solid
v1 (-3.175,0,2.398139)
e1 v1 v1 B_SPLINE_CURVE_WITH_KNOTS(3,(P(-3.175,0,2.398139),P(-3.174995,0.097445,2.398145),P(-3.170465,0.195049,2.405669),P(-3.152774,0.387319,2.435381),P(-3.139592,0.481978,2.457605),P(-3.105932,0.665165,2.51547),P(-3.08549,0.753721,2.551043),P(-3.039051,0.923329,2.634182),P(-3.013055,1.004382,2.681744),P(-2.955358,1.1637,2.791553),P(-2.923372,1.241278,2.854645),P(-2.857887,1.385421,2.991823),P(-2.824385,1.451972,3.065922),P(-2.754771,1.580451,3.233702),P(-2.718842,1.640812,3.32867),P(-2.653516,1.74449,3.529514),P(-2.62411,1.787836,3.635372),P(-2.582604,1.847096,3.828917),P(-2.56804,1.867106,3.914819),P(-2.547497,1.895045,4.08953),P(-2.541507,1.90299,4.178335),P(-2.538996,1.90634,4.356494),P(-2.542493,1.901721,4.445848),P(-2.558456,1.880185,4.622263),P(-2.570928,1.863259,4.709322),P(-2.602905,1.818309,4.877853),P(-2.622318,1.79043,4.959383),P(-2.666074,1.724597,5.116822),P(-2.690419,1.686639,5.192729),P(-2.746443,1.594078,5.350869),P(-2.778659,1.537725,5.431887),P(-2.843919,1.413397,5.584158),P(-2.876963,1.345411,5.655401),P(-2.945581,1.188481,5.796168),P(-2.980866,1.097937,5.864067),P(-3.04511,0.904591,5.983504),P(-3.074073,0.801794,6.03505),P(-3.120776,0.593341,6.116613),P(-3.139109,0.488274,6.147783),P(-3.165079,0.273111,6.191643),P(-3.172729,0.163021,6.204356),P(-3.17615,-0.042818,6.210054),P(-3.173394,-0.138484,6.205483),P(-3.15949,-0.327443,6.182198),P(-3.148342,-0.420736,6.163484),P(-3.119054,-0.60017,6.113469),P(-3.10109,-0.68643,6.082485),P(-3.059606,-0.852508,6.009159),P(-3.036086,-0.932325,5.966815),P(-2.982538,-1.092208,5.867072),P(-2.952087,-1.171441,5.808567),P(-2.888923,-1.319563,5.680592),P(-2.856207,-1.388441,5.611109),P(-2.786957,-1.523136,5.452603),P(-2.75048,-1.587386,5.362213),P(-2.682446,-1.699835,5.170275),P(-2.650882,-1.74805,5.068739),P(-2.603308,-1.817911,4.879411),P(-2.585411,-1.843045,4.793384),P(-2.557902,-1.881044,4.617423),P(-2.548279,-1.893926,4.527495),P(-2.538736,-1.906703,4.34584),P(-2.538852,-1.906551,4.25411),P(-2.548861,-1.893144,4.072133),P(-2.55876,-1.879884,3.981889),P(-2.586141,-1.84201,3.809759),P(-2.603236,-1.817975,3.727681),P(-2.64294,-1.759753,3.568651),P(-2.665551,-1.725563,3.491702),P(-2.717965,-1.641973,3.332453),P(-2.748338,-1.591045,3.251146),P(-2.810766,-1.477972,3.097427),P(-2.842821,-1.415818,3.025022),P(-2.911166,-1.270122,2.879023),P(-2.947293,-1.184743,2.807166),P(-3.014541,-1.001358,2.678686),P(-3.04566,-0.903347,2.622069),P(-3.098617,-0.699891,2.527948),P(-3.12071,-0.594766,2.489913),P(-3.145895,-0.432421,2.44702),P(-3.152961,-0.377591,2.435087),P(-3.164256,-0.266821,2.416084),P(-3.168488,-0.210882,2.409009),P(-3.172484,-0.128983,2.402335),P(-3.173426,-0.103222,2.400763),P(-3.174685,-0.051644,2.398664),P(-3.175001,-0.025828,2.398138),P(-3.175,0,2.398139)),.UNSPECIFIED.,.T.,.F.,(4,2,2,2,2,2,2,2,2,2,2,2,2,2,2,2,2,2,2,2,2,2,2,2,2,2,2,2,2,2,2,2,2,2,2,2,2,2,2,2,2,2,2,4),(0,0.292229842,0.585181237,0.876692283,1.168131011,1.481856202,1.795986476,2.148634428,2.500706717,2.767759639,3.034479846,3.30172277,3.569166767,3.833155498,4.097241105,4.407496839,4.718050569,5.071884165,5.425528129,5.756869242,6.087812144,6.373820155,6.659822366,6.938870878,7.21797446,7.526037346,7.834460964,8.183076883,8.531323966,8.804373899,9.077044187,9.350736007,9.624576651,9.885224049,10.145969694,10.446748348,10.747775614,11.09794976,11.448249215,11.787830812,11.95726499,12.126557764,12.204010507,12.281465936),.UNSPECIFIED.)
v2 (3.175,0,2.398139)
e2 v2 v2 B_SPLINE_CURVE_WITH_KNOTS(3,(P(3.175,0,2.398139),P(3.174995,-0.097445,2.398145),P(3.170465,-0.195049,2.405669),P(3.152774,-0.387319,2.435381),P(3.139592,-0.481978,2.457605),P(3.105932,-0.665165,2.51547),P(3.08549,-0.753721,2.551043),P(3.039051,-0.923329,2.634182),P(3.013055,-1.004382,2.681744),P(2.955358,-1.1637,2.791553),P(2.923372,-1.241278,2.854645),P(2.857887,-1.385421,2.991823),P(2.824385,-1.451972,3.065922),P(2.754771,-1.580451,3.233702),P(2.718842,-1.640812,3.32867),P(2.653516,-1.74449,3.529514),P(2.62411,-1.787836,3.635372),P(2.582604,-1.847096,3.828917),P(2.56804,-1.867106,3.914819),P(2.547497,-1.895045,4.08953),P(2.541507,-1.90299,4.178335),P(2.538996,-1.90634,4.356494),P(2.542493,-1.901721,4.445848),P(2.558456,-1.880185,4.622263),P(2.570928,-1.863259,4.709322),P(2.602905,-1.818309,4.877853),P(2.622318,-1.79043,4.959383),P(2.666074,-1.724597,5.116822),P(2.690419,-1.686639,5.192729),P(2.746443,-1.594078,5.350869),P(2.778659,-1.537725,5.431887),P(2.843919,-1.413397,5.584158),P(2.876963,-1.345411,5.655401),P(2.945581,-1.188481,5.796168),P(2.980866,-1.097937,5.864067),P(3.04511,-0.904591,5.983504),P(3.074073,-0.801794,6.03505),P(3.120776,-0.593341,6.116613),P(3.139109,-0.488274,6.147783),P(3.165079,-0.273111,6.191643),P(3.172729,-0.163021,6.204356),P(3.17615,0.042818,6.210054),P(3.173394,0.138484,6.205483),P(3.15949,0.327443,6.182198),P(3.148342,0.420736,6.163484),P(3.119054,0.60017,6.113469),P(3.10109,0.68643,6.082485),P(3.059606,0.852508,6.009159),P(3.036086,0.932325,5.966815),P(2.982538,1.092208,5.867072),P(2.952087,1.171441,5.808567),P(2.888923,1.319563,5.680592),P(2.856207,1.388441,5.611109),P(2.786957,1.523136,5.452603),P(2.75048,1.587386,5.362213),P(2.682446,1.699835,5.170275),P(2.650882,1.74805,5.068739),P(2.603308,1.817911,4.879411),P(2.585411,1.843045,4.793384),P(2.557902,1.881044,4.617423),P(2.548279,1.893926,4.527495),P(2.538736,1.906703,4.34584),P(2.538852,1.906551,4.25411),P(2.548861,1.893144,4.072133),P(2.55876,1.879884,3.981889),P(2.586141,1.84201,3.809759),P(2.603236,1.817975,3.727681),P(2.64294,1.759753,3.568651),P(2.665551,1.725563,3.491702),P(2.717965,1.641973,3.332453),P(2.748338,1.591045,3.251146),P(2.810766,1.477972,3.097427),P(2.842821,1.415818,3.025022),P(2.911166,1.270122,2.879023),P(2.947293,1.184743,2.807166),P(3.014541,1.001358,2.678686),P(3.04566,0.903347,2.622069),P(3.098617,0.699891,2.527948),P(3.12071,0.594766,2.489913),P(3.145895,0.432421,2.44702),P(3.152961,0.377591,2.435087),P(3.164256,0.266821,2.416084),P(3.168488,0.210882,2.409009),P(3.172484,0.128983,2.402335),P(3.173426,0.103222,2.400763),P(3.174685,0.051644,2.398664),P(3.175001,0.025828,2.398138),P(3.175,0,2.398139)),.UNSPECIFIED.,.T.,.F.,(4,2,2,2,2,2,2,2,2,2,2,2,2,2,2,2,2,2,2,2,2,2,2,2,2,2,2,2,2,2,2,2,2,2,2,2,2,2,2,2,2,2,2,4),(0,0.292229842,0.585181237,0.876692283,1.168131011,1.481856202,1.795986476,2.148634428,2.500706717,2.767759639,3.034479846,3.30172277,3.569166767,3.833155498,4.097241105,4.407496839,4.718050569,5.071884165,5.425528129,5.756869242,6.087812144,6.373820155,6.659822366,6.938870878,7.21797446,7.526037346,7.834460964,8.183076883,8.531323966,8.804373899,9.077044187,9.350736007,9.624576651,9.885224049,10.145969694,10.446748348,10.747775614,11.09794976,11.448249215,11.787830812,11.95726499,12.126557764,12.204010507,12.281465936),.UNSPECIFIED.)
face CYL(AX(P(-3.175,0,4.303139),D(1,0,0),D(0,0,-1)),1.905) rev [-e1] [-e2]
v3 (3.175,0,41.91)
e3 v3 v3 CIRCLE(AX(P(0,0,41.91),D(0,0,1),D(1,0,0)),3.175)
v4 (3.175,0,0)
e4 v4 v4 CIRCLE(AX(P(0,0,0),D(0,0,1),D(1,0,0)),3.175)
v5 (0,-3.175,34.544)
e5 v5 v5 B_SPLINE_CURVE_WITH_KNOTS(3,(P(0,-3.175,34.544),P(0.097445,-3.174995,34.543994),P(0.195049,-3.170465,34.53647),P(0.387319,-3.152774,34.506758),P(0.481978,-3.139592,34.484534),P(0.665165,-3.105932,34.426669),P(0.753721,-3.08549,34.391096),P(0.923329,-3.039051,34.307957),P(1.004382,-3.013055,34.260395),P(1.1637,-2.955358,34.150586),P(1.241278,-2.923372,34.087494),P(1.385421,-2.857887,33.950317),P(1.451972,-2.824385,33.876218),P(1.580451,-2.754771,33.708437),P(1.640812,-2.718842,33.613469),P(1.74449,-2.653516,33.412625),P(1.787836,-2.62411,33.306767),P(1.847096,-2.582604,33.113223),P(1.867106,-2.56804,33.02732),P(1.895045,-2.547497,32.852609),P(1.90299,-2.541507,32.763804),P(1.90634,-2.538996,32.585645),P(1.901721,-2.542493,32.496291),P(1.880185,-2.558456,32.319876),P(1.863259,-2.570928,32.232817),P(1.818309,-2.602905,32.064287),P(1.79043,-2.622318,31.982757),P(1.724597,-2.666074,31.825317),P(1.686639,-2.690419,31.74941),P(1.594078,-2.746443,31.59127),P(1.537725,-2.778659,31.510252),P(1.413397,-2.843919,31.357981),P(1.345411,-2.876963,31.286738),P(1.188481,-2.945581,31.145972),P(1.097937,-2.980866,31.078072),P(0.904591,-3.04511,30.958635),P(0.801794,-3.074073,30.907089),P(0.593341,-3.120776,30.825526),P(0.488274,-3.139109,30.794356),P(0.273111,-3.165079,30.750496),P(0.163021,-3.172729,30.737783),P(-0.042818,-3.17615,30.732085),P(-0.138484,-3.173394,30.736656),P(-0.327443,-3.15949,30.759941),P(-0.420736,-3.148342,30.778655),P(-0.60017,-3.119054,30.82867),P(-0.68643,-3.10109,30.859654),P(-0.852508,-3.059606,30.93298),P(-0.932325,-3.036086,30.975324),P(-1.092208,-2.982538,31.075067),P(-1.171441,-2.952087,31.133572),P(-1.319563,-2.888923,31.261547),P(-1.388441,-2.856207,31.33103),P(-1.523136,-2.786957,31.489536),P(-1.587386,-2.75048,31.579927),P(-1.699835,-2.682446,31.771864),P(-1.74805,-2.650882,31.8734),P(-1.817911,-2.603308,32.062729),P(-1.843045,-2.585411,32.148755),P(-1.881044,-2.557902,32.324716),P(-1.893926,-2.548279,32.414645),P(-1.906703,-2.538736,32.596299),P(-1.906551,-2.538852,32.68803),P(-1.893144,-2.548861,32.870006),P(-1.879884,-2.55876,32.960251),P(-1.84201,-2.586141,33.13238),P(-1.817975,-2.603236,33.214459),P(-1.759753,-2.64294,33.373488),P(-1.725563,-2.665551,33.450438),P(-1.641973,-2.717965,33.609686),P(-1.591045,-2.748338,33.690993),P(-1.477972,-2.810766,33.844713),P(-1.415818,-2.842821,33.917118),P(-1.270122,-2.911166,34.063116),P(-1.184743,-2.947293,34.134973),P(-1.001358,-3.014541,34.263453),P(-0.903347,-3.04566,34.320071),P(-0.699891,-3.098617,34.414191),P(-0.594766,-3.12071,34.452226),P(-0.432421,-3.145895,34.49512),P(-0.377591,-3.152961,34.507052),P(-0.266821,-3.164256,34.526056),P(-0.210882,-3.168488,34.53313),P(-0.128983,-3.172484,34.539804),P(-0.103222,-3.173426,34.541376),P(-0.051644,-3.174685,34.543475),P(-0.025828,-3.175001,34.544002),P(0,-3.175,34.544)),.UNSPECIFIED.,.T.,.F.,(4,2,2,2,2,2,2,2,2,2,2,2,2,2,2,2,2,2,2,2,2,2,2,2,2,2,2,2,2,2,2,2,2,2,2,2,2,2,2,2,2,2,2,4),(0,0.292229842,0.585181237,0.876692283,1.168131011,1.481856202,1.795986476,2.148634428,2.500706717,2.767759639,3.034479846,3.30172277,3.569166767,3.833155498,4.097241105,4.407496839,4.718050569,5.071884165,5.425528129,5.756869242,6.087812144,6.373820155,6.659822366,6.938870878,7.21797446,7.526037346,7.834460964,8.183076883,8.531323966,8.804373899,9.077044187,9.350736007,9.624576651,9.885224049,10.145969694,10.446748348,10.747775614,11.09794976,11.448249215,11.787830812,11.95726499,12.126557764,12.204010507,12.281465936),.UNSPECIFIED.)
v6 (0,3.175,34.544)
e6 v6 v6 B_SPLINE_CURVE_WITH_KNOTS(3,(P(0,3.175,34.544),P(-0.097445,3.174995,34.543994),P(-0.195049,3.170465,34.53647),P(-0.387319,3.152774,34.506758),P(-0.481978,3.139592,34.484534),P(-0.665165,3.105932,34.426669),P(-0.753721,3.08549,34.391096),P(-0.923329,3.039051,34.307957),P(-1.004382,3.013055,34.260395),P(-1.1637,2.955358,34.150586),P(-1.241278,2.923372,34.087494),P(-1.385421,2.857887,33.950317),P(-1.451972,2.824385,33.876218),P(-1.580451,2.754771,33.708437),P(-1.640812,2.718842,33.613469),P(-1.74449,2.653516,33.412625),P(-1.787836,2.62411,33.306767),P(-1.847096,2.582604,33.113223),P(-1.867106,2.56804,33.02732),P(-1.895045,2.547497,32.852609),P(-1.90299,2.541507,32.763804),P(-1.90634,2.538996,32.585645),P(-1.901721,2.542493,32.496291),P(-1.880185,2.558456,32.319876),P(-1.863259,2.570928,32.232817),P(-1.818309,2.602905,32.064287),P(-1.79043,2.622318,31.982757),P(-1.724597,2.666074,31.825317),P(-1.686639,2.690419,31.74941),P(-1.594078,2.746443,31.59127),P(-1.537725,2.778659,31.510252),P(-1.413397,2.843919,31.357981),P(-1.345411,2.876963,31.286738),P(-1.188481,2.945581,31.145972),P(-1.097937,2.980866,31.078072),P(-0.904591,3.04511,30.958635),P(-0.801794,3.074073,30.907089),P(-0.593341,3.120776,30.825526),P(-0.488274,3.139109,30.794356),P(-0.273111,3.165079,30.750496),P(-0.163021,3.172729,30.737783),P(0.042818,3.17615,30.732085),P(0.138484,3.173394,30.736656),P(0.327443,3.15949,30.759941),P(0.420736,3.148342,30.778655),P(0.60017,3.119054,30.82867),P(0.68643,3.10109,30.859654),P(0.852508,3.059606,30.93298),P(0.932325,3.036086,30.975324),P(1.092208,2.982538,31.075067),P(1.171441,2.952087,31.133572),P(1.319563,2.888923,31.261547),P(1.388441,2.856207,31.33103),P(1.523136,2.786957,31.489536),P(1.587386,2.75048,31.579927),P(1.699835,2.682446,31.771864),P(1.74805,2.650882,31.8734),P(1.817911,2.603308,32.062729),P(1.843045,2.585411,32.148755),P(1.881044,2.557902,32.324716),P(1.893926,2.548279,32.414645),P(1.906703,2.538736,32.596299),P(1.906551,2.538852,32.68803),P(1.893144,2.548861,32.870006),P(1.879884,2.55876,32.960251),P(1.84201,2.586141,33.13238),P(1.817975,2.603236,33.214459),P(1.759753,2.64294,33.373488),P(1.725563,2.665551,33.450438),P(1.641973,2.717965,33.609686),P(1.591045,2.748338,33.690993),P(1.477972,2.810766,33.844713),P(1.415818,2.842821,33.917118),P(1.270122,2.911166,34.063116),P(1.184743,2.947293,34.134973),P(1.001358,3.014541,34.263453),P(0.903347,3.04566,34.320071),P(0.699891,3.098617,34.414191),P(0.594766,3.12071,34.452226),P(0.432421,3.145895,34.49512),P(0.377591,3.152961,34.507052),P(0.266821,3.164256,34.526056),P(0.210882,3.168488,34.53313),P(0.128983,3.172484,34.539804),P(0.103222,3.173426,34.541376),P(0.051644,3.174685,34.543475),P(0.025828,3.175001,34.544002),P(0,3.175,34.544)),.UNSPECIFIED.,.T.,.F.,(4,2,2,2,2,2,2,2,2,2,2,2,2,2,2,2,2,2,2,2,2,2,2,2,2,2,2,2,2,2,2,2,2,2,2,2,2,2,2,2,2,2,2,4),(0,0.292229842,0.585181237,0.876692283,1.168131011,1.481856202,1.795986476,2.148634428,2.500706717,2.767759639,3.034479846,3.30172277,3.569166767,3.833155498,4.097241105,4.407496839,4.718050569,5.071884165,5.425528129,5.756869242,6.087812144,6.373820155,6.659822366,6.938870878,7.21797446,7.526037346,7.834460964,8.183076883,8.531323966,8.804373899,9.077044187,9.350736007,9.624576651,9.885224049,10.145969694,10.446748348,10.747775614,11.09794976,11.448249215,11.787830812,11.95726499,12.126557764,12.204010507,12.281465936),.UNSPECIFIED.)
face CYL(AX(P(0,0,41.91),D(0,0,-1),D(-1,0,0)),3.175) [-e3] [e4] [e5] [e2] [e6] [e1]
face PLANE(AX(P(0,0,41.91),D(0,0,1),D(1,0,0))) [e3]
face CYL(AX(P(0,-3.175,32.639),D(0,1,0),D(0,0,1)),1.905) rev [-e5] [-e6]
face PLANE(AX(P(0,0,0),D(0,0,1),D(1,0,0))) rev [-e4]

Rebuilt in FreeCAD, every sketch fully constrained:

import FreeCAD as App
import Part
import Sketcher

V = App.Vector
Q = App.Units.Quantity

doc = App.newDocument("Part")
body = doc.addObject("PartDesign::Body", "Body")

# Sketch on XY plane
sketch1 = body.newObject("Sketcher::SketchObject", "Sketch")
sketch1.AttachmentSupport = (doc.getObject("XY_Plane"), [""])
sketch1.MapMode = "FlatFace"
sketch1.addGeometry(Part.Circle(V(0, 0, 0), V(0, 0, 1), 3.2), False)
sketch1.addConstraint(Sketcher.Constraint("Coincident", 0, 3, -1, 1))
sketch1.addConstraint(Sketcher.Constraint("Diameter", 0, Q("0.25 in")))
pad1 = body.newObject("PartDesign::Pad", "Pad")
pad1.Profile = sketch1
pad1.Length = Q("1.65 in")

# Sketch on XZ plane
sketch2 = body.newObject("Sketcher::SketchObject", "Sketch001")
sketch2.AttachmentSupport = (doc.getObject("XZ_Plane"), [""])
sketch2.MapMode = "FlatFace"
sketch2.addGeometry(Part.Circle(V(0, 32.6, 0), V(0, 0, 1), 1.9), False)
sketch2.addConstraint(Sketcher.Constraint("PointOnObject", 0, 3, -2))
sketch2.addConstraint(Sketcher.Constraint("Diameter", 0, Q("0.15 in")))
sketch2.addConstraint(Sketcher.Constraint("DistanceY", -1, 1, 0, 3, Q("1.285 in")))
pocket1 = body.newObject("PartDesign::Pocket", "Pocket")
pocket1.Profile = sketch2
pocket1.Type = "ThroughAll"
pocket1.Midplane = True

# Sketch on YZ plane
sketch3 = body.newObject("Sketcher::SketchObject", "Sketch002")
sketch3.AttachmentSupport = (doc.getObject("YZ_Plane"), [""])
sketch3.MapMode = "FlatFace"
sketch3.addGeometry(Part.Circle(V(0, 4.3, 0), V(0, 0, 1), 1.9), False)
sketch3.addConstraint(Sketcher.Constraint("PointOnObject", 0, 3, -2))
sketch3.addConstraint(Sketcher.Constraint("Diameter", 0, Q("0.15 in")))
sketch3.addConstraint(Sketcher.Constraint("DistanceY", -1, 1, 0, 3, Q("4.303139 mm")))
pocket2 = body.newObject("PartDesign::Pocket", "Pocket001")
pocket2.Profile = sketch3
pocket2.Type = "ThroughAll"
pocket2.Midplane = True

doc.recompute()
